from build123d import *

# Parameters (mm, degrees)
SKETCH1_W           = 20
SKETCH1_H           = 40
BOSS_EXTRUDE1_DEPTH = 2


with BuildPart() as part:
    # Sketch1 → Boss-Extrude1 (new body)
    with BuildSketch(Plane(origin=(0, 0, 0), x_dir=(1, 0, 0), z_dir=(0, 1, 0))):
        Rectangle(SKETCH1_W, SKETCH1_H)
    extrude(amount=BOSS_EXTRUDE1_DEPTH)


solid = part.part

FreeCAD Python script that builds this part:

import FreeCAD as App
import Part
import Sketcher

doc = App.newDocument("Part")
body = doc.addObject("PartDesign::Body", "Body")

# Sketch on XZ plane
sketch1 = doc.addObject("Sketcher::SketchObject", "Sketch")
body.addObject(sketch1)
sketch1.AttachmentSupport = (doc.XZ_Plane, [""])
sketch1.MapMode = "FlatFace"
sketch1.addGeometry([
    Part.LineSegment(App.Vector(-10, -20, 0), App.Vector(-10, 20, 0)),
    Part.LineSegment(App.Vector(-10, 20, 0), App.Vector(10, 20, 0)),
    Part.LineSegment(App.Vector(10, 20, 0), App.Vector(10, -20, 0)),
    Part.LineSegment(App.Vector(10, -20, 0), App.Vector(-10, -20, 0)),
], False)
sketch1.addConstraint([
    Sketcher.Constraint("Coincident", 0, 2, 1, 1),
    Sketcher.Constraint("Coincident", 1, 2, 2, 1),
    Sketcher.Constraint("Coincident", 2, 2, 3, 1),
    Sketcher.Constraint("Coincident", 3, 2, 0, 1),
    Sketcher.Constraint("Vertical", 0),
    Sketcher.Constraint("Horizontal", 1),
    Sketcher.Constraint("Vertical", 2),
    Sketcher.Constraint("Horizontal", 3),
    Sketcher.Constraint("Symmetric", 0, 2, 2, 2, -1, 1),
    Sketcher.Constraint("DistanceX", 1, 1, 1, 2, 20.0),
    Sketcher.Constraint("DistanceY", 0, 1, 0, 2, 40.0),
])
pad1 = doc.addObject("PartDesign::Pad", "Pad")
body.addObject(pad1)
pad1.Profile = sketch1
pad1.Length = 2
pad1.Reversed = True

doc.recompute()
